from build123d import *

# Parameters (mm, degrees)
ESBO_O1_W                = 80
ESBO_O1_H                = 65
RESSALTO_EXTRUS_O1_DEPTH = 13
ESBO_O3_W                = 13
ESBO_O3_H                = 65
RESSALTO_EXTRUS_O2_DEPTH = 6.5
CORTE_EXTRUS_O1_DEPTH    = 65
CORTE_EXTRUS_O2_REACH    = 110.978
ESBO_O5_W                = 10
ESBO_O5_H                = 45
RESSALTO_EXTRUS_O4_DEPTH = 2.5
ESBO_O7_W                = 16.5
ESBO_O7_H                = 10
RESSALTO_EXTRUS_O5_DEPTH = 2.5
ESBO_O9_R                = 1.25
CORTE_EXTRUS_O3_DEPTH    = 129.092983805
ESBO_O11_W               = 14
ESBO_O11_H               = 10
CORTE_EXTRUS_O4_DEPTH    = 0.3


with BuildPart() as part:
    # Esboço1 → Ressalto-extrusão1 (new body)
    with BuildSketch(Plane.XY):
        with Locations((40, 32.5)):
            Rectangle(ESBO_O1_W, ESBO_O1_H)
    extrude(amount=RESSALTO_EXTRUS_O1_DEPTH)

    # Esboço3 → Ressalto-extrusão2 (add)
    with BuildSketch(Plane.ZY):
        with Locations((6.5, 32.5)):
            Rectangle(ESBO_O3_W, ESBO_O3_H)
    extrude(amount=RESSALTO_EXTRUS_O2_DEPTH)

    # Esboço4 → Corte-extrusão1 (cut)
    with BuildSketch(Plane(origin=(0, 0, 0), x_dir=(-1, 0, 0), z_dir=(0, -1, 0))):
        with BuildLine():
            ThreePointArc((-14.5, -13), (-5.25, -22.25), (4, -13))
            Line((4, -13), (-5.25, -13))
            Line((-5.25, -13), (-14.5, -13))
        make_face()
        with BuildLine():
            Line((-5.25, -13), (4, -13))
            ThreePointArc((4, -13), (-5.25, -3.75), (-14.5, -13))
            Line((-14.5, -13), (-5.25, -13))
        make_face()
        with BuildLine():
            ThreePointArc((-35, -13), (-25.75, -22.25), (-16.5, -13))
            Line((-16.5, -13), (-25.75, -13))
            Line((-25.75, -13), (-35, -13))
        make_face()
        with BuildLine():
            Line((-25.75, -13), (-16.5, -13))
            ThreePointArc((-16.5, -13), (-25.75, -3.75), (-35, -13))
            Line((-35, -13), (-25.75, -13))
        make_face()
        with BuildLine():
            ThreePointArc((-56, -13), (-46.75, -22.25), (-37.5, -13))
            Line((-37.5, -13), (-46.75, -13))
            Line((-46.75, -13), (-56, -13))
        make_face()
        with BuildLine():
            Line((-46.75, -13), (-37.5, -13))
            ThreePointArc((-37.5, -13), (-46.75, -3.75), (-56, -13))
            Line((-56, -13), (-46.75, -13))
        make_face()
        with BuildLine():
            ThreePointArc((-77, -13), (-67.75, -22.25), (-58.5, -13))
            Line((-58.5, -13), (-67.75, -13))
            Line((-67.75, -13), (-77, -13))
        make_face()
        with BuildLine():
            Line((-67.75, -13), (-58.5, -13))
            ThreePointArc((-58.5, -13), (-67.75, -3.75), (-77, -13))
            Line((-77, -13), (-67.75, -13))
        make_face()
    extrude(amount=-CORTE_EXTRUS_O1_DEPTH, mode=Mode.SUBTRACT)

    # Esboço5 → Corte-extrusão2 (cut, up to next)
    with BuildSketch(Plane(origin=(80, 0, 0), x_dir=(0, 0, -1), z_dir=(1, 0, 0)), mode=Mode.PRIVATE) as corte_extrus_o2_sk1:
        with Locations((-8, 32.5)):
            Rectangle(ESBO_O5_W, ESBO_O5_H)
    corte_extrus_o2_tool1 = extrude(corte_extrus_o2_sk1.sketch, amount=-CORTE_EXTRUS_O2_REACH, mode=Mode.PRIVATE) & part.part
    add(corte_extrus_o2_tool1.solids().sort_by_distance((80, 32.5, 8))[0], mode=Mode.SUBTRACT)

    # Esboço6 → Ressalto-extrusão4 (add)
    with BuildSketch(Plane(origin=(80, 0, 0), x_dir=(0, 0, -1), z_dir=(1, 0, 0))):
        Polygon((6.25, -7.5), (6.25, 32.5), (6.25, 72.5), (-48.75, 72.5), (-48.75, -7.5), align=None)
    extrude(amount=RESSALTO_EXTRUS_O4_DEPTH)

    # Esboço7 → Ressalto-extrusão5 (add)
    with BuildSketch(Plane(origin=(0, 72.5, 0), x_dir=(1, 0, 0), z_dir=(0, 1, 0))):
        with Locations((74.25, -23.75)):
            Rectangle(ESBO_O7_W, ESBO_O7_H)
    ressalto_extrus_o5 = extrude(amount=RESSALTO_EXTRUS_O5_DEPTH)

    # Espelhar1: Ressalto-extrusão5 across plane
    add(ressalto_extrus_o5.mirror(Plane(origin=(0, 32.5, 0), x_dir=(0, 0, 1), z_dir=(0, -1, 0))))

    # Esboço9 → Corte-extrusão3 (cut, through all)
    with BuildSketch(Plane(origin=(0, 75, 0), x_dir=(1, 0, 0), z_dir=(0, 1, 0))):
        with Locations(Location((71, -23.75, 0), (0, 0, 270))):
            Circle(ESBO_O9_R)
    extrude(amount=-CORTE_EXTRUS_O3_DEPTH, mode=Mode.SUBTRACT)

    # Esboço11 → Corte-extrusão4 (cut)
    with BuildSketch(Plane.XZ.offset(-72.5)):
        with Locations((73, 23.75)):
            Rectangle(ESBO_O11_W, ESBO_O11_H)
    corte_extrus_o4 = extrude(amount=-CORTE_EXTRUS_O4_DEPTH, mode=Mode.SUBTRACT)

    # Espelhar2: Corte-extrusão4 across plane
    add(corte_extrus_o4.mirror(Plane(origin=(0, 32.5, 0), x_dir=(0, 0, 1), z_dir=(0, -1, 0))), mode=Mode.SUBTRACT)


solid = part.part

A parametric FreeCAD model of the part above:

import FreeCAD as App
import Part
import Sketcher

V = App.Vector
Q = App.Units.Quantity


def add_polygon(sketch, points):
    """Adds a closed chain of lines whose ends are joined by coincident constraints."""
    first, n = sketch.GeometryCount, len(points)
    for a, b in zip(points, points[1:] + points[:1]):
        sketch.addGeometry(Part.LineSegment(App.Vector(*a, 0), App.Vector(*b, 0)), False)
    for i in range(n):
        sketch.addConstraint(Sketcher.Constraint("Coincident", first + i, 2, first + (i + 1) % n, 1))

doc = App.newDocument("Part")
params = doc.addObject("Spreadsheet::Sheet", "Params")
for row, (alias, value) in enumerate([
    ("sketch1_width", "80 mm"),
    ("sketch1_height", "65 mm"),
    ("pad1_length", "13 mm"),
    ("sketch2_width", "65 mm"),
    ("sketch2_height", "13 mm"),
    ("pad2_length", "6.5 mm"),
    ("sketch3_diameter", "18.5 mm"),
    ("pocket1_length", "65 mm"),
    ("sketch4_width", "45 mm"),
    ("sketch4_height", "10 mm"),
    ("pocket2_length", "86.5 mm"),
    ("sketch5_width", "80 mm"),
    ("sketch5_height", "55 mm"),
    ("pad3_length", "2.5 mm"),
    ("sketch6_height", "10 mm"),
    ("sketch6_width", "16.5 mm"),
    ("pad4_length", "2.5 mm"),
    ("sketch7_diameter", "2.5 mm"),
    ("sketch8_width", "14 mm"),
    ("sketch8_height", "10 mm"),
    ("pocket4_length", "0.3 mm"),
], start=1):
    params.set(f"A{row}", alias)
    params.set(f"B{row}", "=" + value)
    params.setAlias(f"B{row}", alias)

body = doc.addObject("PartDesign::Body", "Body")

sketch1 = body.newObject("Sketcher::SketchObject", "Sketch")
sketch1.AttachmentSupport = (doc.getObject("XY_Plane"), [""])
sketch1.MapMode = "FlatFace"
add_polygon(sketch1, [(0, 65), (0, 0), (80, 0), (80, 65)])
sketch1.addConstraint([
    Sketcher.Constraint("Vertical", 0),
    Sketcher.Constraint("Horizontal", 1),
    Sketcher.Constraint("Vertical", 2),
    Sketcher.Constraint("Horizontal", 3),
    Sketcher.Constraint("Coincident", 0, 2, -1, 1),
    Sketcher.Constraint("DistanceX", 1, 1, 1, 2, Q("80 mm")),
    Sketcher.Constraint("DistanceY", 0, 2, 0, 1, Q("65 mm")),
])
sketch1.setExpression("Constraints[9]", "Params.sketch1_width")
sketch1.setExpression("Constraints[10]", "Params.sketch1_height")
pad1 = body.newObject("PartDesign::Pad", "Pad")
pad1.Profile = sketch1
pad1.setExpression("Length", "Params.pad1_length")

sketch2 = body.newObject("Sketcher::SketchObject", "Sketch001")
sketch2.AttachmentSupport = (doc.getObject("YZ_Plane"), [""])
sketch2.MapMode = "FlatFace"
add_polygon(sketch2, [(65, 0), (0, 0), (0, 13), (65, 13)])
sketch2.addConstraint([
    Sketcher.Constraint("Horizontal", 0),
    Sketcher.Constraint("Vertical", 1),
    Sketcher.Constraint("Horizontal", 2),
    Sketcher.Constraint("Vertical", 3),
    Sketcher.Constraint("Coincident", 0, 2, -1, 1),
    Sketcher.Constraint("DistanceX", 0, 2, 0, 1, Q("65 mm")),
    Sketcher.Constraint("DistanceY", 1, 1, 1, 2, Q("13 mm")),
])
sketch2.setExpression("Constraints[9]", "Params.sketch2_width")
sketch2.setExpression("Constraints[10]", "Params.sketch2_height")
pad2 = body.newObject("PartDesign::Pad", "Pad001")
pad2.Profile = sketch2
pad2.setExpression("Length", "Params.pad2_length")
pad2.Reversed = True

sketch3 = body.newObject("Sketcher::SketchObject", "Sketch002")
sketch3.AttachmentSupport = (doc.getObject("XZ_Plane"), [""])
sketch3.MapMode = "FlatFace"
sketch3.addGeometry([
    Part.Circle(V(5.25, 13, 0), V(0, 0, 1), 9.25),
    Part.Circle(V(25.75, 13, 0), V(0, 0, 1), 9.25),
    Part.Circle(V(46.75, 13, 0), V(0, 0, 1), 9.25),
    Part.Circle(V(67.75, 13, 0), V(0, 0, 1), 9.25),
], False)
sketch3.addConstraint([
    Sketcher.Constraint("Equal", 0, 1),
    Sketcher.Constraint("Equal", 1, 2),
    Sketcher.Constraint("Equal", 2, 3),
    Sketcher.Constraint("Horizontal", 0, 3, 1, 3),
    Sketcher.Constraint("Horizontal", 1, 3, 2, 3),
    Sketcher.Constraint("Horizontal", 2, 3, 3, 3),
    Sketcher.Constraint("Diameter", 0, Q("18.5 mm")),
    Sketcher.Constraint("DistanceY", -1, 1, 0, 3, Q("13 mm")),
    Sketcher.Constraint("DistanceX", 1, 3, 2, 3, Q("21 mm")),
    Sketcher.Constraint("DistanceX", 2, 3, 3, 3, Q("21 mm")),
    Sketcher.Constraint("DistanceX", 0, 3, 1, 3, Q("20.5 mm")),
    Sketcher.Constraint("DistanceX", -1, 1, 0, 3, Q("5.25 mm")),
])
sketch3.setExpression("Constraints[6]", "Params.sketch3_diameter")
pocket1 = body.newObject("PartDesign::Pocket", "Pocket")
pocket1.Profile = sketch3
pocket1.setExpression("Length", "Params.pocket1_length")

sketch4 = body.newObject("Sketcher::SketchObject", "Sketch003")
sketch4.AttachmentSupport = (doc.getObject("YZ_Plane"), [""])
sketch4.MapMode = "FlatFace"
sketch4.AttachmentOffset = App.Placement(V(0, 0, 80), App.Rotation())
add_polygon(sketch4, [(55, 13), (10, 13), (10, 3), (55, 3)])
sketch4.addConstraint([
    Sketcher.Constraint("Horizontal", 0),
    Sketcher.Constraint("Vertical", 1),
    Sketcher.Constraint("Horizontal", 2),
    Sketcher.Constraint("Vertical", 3),
    Sketcher.Constraint("DistanceX", 0, 2, 0, 1, Q("45 mm")),
    Sketcher.Constraint("DistanceY", 1, 2, 1, 1, Q("10 mm")),
    Sketcher.Constraint("DistanceX", -1, 1, 0, 2, Q("10 mm")),
    Sketcher.Constraint("DistanceY", -1, 1, 0, 2, Q("13 mm")),
])
sketch4.setExpression("Constraints[8]", "Params.sketch4_width")
sketch4.setExpression("Constraints[9]", "Params.sketch4_height")
pocket2 = body.newObject("PartDesign::Pocket", "Pocket001")
pocket2.Profile = sketch4
pocket2.setExpression("Length", "Params.pocket2_length")

sketch5 = body.newObject("Sketcher::SketchObject", "Sketch004")
sketch5.AttachmentSupport = (doc.getObject("YZ_Plane"), [""])
sketch5.MapMode = "FlatFace"
sketch5.AttachmentOffset = App.Placement(V(0, 0, 80), App.Rotation())
add_polygon(sketch5, [(-7.5, -6.25), (72.5, -6.25), (72.5, 48.75), (-7.5, 48.75)])
sketch5.addConstraint([
    Sketcher.Constraint("Horizontal", 0),
    Sketcher.Constraint("Vertical", 1),
    Sketcher.Constraint("Horizontal", 2),
    Sketcher.Constraint("Vertical", 3),
    Sketcher.Constraint("DistanceX", 0, 1, 0, 2, Q("80 mm")),
    Sketcher.Constraint("DistanceY", 1, 1, 1, 2, Q("55 mm")),
    Sketcher.Constraint("DistanceX", -1, 1, 0, 2, Q("72.5 mm")),
    Sketcher.Constraint("DistanceY", 0, 2, -1, 1, Q("6.25 mm")),
])
sketch5.setExpression("Constraints[8]", "Params.sketch5_width")
sketch5.setExpression("Constraints[9]", "Params.sketch5_height")
pad3 = body.newObject("PartDesign::Pad", "Pad002")
pad3.Profile = sketch5
pad3.setExpression("Length", "Params.pad3_length")

sketch6 = body.newObject("Sketcher::SketchObject", "Sketch005")
sketch6.AttachmentSupport = (doc.getObject("XZ_Plane"), [""])
sketch6.MapMode = "FlatFace"
sketch6.AttachmentOffset = App.Placement(V(0, 0, -72.5), App.Rotation())
add_polygon(sketch6, [(66, 18.75), (66, 28.75), (82.5, 28.75), (82.5, 18.75)])
sketch6.addConstraint([
    Sketcher.Constraint("Vertical", 0),
    Sketcher.Constraint("Horizontal", 1),
    Sketcher.Constraint("Vertical", 2),
    Sketcher.Constraint("Horizontal", 3),
    Sketcher.Constraint("DistanceY", 0, 1, 0, 2, Q("10 mm")),
    Sketcher.Constraint("DistanceX", 1, 1, 1, 2, Q("16.5 mm")),
    Sketcher.Constraint("DistanceX", -1, 1, 0, 2, Q("66 mm")),
    Sketcher.Constraint("DistanceY", -1, 1, 0, 2, Q("28.75 mm")),
])
sketch6.setExpression("Constraints[8]", "Params.sketch6_height")
sketch6.setExpression("Constraints[9]", "Params.sketch6_width")
pad4 = body.newObject("PartDesign::Pad", "Pad003")
pad4.Profile = sketch6
pad4.setExpression("Length", "Params.pad4_length")
pad4.Reversed = True
doc.recompute()

datumplane = body.newObject("PartDesign::Plane", "DatumPlane")
datumplane.AttachmentSupport = (doc.getObject("XZ_Plane"), [""])
datumplane.MapMode = "FlatFace"
datumplane.AttachmentOffset = App.Placement(V(0, 0, -32.5), App.Rotation())
mirrored = body.newObject("PartDesign::Mirrored", "Mirrored")
mirrored.Originals = [pad4]
mirrored.MirrorPlane = (datumplane, [""])
body.Tip = mirrored

sketch7 = body.newObject("Sketcher::SketchObject", "Sketch006")
sketch7.AttachmentSupport = (doc.getObject("XZ_Plane"), [""])
sketch7.MapMode = "FlatFace"
sketch7.AttachmentOffset = App.Placement(V(0, 0, -75), App.Rotation())
sketch7.addGeometry(Part.Circle(V(71, 23.75, 0), V(0, 0, 1), 1.25), False)
sketch7.addConstraint([
    Sketcher.Constraint("Diameter", 0, Q("2.5 mm")),
    Sketcher.Constraint("DistanceX", -1, 1, 0, 3, Q("71 mm")),
    Sketcher.Constraint("DistanceY", -1, 1, 0, 3, Q("23.75 mm")),
])
sketch7.setExpression("Constraints[0]", "Params.sketch7_diameter")
pocket3 = body.newObject("PartDesign::Pocket", "Pocket002")
pocket3.Profile = sketch7
pocket3.Type = "ThroughAll"
pocket3.Reversed = True

sketch8 = body.newObject("Sketcher::SketchObject", "Sketch007")
sketch8.AttachmentSupport = (doc.getObject("XZ_Plane"), [""])
sketch8.MapMode = "FlatFace"
sketch8.AttachmentOffset = App.Placement(V(0, 0, -72.5), App.Rotation())
add_polygon(sketch8, [(66, 28.75), (66, 18.75), (80, 18.75), (80, 28.75)])
sketch8.addConstraint([
    Sketcher.Constraint("Vertical", 0),
    Sketcher.Constraint("Horizontal", 1),
    Sketcher.Constraint("Vertical", 2),
    Sketcher.Constraint("Horizontal", 3),
    Sketcher.Constraint("DistanceX", 1, 1, 1, 2, Q("14 mm")),
    Sketcher.Constraint("DistanceY", 0, 2, 0, 1, Q("10 mm")),
    Sketcher.Constraint("DistanceX", -1, 1, 0, 2, Q("66 mm")),
    Sketcher.Constraint("DistanceY", -1, 1, 0, 2, Q("18.75 mm")),
])
sketch8.setExpression("Constraints[8]", "Params.sketch8_width")
sketch8.setExpression("Constraints[9]", "Params.sketch8_height")
pocket4 = body.newObject("PartDesign::Pocket", "Pocket003")
pocket4.Profile = sketch8
pocket4.setExpression("Length", "Params.pocket4_length")
doc.recompute()

datumplane2 = body.newObject("PartDesign::Plane", "DatumPlane001")
datumplane2.AttachmentSupport = (doc.getObject("XZ_Plane"), [""])
datumplane2.MapMode = "FlatFace"
datumplane2.AttachmentOffset = App.Placement(V(0, 0, -32.5), App.Rotation())
mirrored2 = body.newObject("PartDesign::Mirrored", "Mirrored001")
mirrored2.Originals = [pocket4]
mirrored2.MirrorPlane = (datumplane2, [""])
body.Tip = mirrored2

doc.recompute()
